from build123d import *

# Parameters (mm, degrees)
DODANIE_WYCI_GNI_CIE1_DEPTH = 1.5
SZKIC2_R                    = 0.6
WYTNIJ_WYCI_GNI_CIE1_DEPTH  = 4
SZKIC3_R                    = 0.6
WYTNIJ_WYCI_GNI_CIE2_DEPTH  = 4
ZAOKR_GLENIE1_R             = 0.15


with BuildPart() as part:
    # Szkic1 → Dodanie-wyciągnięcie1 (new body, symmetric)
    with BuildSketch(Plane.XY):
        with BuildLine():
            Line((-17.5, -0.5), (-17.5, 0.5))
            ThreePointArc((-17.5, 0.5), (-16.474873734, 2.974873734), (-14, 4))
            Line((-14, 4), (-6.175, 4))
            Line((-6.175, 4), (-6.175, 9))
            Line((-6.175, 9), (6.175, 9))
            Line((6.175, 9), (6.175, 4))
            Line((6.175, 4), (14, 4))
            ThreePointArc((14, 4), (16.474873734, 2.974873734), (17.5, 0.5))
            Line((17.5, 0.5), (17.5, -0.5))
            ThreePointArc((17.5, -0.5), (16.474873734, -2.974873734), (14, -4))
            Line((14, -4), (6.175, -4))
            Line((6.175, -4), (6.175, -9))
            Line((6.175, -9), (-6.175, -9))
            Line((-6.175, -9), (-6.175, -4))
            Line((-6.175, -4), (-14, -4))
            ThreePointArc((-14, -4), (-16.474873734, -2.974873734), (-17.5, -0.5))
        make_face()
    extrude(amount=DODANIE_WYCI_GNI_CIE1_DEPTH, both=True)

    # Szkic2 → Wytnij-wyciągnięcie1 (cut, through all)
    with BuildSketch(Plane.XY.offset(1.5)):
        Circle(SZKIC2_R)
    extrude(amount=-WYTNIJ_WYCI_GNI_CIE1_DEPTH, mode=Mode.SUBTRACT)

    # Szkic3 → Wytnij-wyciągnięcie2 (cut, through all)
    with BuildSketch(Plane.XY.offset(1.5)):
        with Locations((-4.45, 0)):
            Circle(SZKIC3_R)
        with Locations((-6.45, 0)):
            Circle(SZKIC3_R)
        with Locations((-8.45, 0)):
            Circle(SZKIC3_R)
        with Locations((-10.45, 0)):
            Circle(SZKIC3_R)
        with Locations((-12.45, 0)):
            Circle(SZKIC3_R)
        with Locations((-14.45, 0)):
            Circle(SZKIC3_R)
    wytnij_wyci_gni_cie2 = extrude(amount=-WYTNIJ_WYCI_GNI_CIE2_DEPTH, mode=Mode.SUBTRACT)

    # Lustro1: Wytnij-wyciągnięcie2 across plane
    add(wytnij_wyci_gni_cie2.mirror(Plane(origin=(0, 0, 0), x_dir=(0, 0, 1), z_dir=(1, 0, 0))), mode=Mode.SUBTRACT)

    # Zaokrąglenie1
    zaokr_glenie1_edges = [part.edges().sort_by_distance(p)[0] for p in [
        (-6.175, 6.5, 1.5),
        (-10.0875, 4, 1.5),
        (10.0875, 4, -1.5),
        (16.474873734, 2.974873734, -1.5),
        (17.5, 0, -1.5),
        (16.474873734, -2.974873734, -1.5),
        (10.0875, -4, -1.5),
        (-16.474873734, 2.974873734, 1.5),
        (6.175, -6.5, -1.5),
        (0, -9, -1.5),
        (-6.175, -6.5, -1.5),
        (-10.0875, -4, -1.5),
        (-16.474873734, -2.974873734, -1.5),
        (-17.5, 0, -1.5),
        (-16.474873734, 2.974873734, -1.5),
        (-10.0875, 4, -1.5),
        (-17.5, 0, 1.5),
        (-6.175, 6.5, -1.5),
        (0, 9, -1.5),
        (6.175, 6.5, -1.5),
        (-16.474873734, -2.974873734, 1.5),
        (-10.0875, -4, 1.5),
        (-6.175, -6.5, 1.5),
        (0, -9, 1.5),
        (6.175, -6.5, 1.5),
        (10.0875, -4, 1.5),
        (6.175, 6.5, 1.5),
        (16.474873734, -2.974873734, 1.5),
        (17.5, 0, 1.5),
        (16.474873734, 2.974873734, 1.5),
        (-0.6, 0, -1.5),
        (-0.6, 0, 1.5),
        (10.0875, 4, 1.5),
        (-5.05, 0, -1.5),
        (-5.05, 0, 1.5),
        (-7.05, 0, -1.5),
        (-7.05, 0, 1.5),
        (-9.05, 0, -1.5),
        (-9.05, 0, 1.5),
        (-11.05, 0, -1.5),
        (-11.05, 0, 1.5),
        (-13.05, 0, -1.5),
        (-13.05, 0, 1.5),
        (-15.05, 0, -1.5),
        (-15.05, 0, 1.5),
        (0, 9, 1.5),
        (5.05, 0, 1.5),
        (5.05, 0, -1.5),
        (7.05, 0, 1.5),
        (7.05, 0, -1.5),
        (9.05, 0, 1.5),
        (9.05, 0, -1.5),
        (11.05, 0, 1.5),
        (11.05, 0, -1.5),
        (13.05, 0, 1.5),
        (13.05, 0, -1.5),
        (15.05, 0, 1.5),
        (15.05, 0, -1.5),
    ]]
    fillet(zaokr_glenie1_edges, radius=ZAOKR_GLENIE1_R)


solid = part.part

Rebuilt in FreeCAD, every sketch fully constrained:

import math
import FreeCAD as App
import Part
import Sketcher
from FreeCAD import Vector


def edges_at(feature, points):
    """Names of the edges that pass closest to the given points."""
    edges = feature.Shape.Edges
    near = lambda p: min(range(len(edges)), key=lambda i: edges[i].distToShape(Part.Vertex(*p))[0])
    return sorted({f"Edge{near(p) + 1}" for p in points})

doc = App.newDocument("Part")
params = doc.addObject("Spreadsheet::Sheet", "Params")
for row, (alias, value) in enumerate([
    ("sketch1_radius", "3.5 mm"),
    ("sketch1_height", "1 mm"),
    ("sketch1_height2", "5 mm"),
    ("sketch1_width", "12.35 mm"),
    ("pad1_length", "3 mm"),
    ("sketch2_diameter", "1.2 mm"),
    ("sketch3_diameter", "1.2 mm"),
    ("fillet_radius", "0.15 mm"),
], start=1):
    params.set(f"A{row}", alias)
    params.set(f"B{row}", "=" + value)
    params.setAlias(f"B{row}", alias)

body = doc.addObject("PartDesign::Body", "Body")

# Sketch on XY plane
sketch1 = body.newObject("Sketcher::SketchObject", "Sketch")
sketch1.AttachmentSupport = (doc.getObject("XY_Plane"), [""])
sketch1.MapMode = "FlatFace"
sketch1.addGeometry(Part.LineSegment(Vector(-17.5, 0.5, 0), Vector(-17.5, -0.5, 0)), False)
sketch1.addGeometry(Part.ArcOfCircle(Part.Circle(Vector(-14, -0.5, 0), Vector(0, 0, 1), 3.5), math.radians(-180), math.radians(-90)), False)
sketch1.addGeometry(Part.LineSegment(Vector(-14, -4, 0), Vector(-6.175, -4, 0)), False)
sketch1.addGeometry(Part.LineSegment(Vector(-6.175, -4, 0), Vector(-6.175, -9, 0)), False)
sketch1.addGeometry(Part.LineSegment(Vector(-6.175, -9, 0), Vector(6.175, -9, 0)), False)
sketch1.addGeometry(Part.LineSegment(Vector(6.175, -9, 0), Vector(6.175, -4, 0)), False)
sketch1.addGeometry(Part.LineSegment(Vector(6.175, -4, 0), Vector(14, -4, 0)), False)
sketch1.addGeometry(Part.ArcOfCircle(Part.Circle(Vector(14, -0.5, 0), Vector(0, 0, 1), 3.5), math.radians(-90), math.radians(0)), False)
sketch1.addGeometry(Part.LineSegment(Vector(17.5, -0.5, 0), Vector(17.5, 0.5, 0)), False)
sketch1.addGeometry(Part.ArcOfCircle(Part.Circle(Vector(14, 0.5, 0), Vector(0, 0, 1), 3.5), math.radians(0), math.radians(90)), False)
sketch1.addGeometry(Part.LineSegment(Vector(14, 4, 0), Vector(6.175, 4, 0)), False)
sketch1.addGeometry(Part.LineSegment(Vector(6.175, 4, 0), Vector(6.175, 9, 0)), False)
sketch1.addGeometry(Part.LineSegment(Vector(6.175, 9, 0), Vector(-6.175, 9, 0)), False)
sketch1.addGeometry(Part.LineSegment(Vector(-6.175, 9, 0), Vector(-6.175, 4, 0)), False)
sketch1.addGeometry(Part.LineSegment(Vector(-6.175, 4, 0), Vector(-14, 4, 0)), False)
sketch1.addGeometry(Part.ArcOfCircle(Part.Circle(Vector(-14, 0.5, 0), Vector(0, 0, 1), 3.5), math.radians(90), math.radians(180)), False)
sketch1.addConstraint(Sketcher.Constraint("Tangent", 0, 2, 1, 1))
sketch1.addConstraint(Sketcher.Constraint("Tangent", 1, 2, 2, 1))
sketch1.addConstraint(Sketcher.Constraint("Coincident", 2, 2, 3, 1))
sketch1.addConstraint(Sketcher.Constraint("Coincident", 3, 2, 4, 1))
sketch1.addConstraint(Sketcher.Constraint("Coincident", 4, 2, 5, 1))
sketch1.addConstraint(Sketcher.Constraint("Coincident", 5, 2, 6, 1))
sketch1.addConstraint(Sketcher.Constraint("Tangent", 6, 2, 7, 1))
sketch1.addConstraint(Sketcher.Constraint("Tangent", 7, 2, 8, 1))
sketch1.addConstraint(Sketcher.Constraint("Tangent", 8, 2, 9, 1))
sketch1.addConstraint(Sketcher.Constraint("Tangent", 9, 2, 10, 1))
sketch1.addConstraint(Sketcher.Constraint("Coincident", 10, 2, 11, 1))
sketch1.addConstraint(Sketcher.Constraint("Coincident", 11, 2, 12, 1))
sketch1.addConstraint(Sketcher.Constraint("Coincident", 12, 2, 13, 1))
sketch1.addConstraint(Sketcher.Constraint("Coincident", 13, 2, 14, 1))
sketch1.addConstraint(Sketcher.Constraint("Tangent", 14, 2, 15, 1))
sketch1.addConstraint(Sketcher.Constraint("Tangent", 15, 2, 0, 1))
sketch1.addConstraint(Sketcher.Constraint("Vertical", 0))
sketch1.addConstraint(Sketcher.Constraint("Horizontal", 2))
sketch1.addConstraint(Sketcher.Constraint("Vertical", 3))
sketch1.addConstraint(Sketcher.Constraint("Horizontal", 4))
sketch1.addConstraint(Sketcher.Constraint("Vertical", 5))
sketch1.addConstraint(Sketcher.Constraint("Horizontal", 6))
sketch1.addConstraint(Sketcher.Constraint("Vertical", 8))
sketch1.addConstraint(Sketcher.Constraint("Horizontal", 10))
sketch1.addConstraint(Sketcher.Constraint("Vertical", 11))
sketch1.addConstraint(Sketcher.Constraint("Horizontal", 12))
sketch1.addConstraint(Sketcher.Constraint("Vertical", 13))
sketch1.addConstraint(Sketcher.Constraint("Horizontal", 14))
sketch1.addConstraint(Sketcher.Constraint("Equal", 1, 7))
sketch1.addConstraint(Sketcher.Constraint("Equal", 7, 9))
sketch1.addConstraint(Sketcher.Constraint("Equal", 9, 15))
sketch1.addConstraint(Sketcher.Constraint("Symmetric", 1, 3, 9, 3, -1, 1))
sketch1.addConstraint(Sketcher.Constraint("Symmetric", 3, 2, 11, 2, -1, 1))
sketch1.addConstraint(Sketcher.Constraint("Symmetric", 5, 2, 13, 2, -1, 1))
sketch1.addConstraint(Sketcher.Constraint("Symmetric", 2, 2, 5, 2, -2))
sketch1.addConstraint(Sketcher.Constraint("Radius", 1, 3.5))
sketch1.addConstraint(Sketcher.Constraint("DistanceY", 0, 2, 0, 1, 1.0))
sketch1.addConstraint(Sketcher.Constraint("DistanceY", 3, 2, 3, 1, 5.0))
sketch1.addConstraint(Sketcher.Constraint("DistanceX", 1, 3, -1, 1, 14.0))
sketch1.addConstraint(Sketcher.Constraint("DistanceX", 4, 1, 4, 2, 12.35))
sketch1.setExpression("Constraints[35]", "Params.sketch1_radius")
sketch1.setExpression("Constraints[36]", "Params.sketch1_height")
sketch1.setExpression("Constraints[37]", "Params.sketch1_height2")
sketch1.setExpression("Constraints[39]", "Params.sketch1_width")
pad1 = body.newObject("PartDesign::Pad", "Pad")
pad1.Profile = sketch1
pad1.setExpression("Length", "Params.pad1_length")
pad1.Midplane = True

# Sketch on XY plane
sketch2 = body.newObject("Sketcher::SketchObject", "Sketch001")
sketch2.AttachmentSupport = (doc.getObject("XY_Plane"), [""])
sketch2.MapMode = "FlatFace"
sketch2.AttachmentOffset = App.Placement(Vector(0, 0, 1.5), App.Rotation())
sketch2.addGeometry(Part.Circle(Vector(0, 0, 0), Vector(0, 0, 1), 0.6), False)
sketch2.addConstraint(Sketcher.Constraint("Coincident", 0, 3, -1, 1))
sketch2.addConstraint(Sketcher.Constraint("Diameter", 0, 1.2))
sketch2.setExpression("Constraints[1]", "Params.sketch2_diameter")
pocket1 = body.newObject("PartDesign::Pocket", "Pocket")
pocket1.Profile = sketch2
pocket1.Type = "ThroughAll"

# Sketch on XY plane
sketch3 = body.newObject("Sketcher::SketchObject", "Sketch002")
sketch3.AttachmentSupport = (doc.getObject("XY_Plane"), [""])
sketch3.MapMode = "FlatFace"
sketch3.AttachmentOffset = App.Placement(Vector(0, 0, 1.5), App.Rotation())
sketch3.addGeometry(Part.Circle(Vector(-4.45, 0, 0), Vector(0, 0, 1), 0.6), False)
sketch3.addGeometry(Part.Circle(Vector(-6.45, 0, 0), Vector(0, 0, 1), 0.6), False)
sketch3.addGeometry(Part.Circle(Vector(-8.45, 0, 0), Vector(0, 0, 1), 0.6), False)
sketch3.addGeometry(Part.Circle(Vector(-10.45, 0, 0), Vector(0, 0, 1), 0.6), False)
sketch3.addGeometry(Part.Circle(Vector(-12.45, 0, 0), Vector(0, 0, 1), 0.6), False)
sketch3.addGeometry(Part.Circle(Vector(-14.45, 0, 0), Vector(0, 0, 1), 0.6), False)
sketch3.addConstraint(Sketcher.Constraint("Equal", 0, 1))
sketch3.addConstraint(Sketcher.Constraint("Equal", 1, 2))
sketch3.addConstraint(Sketcher.Constraint("Equal", 2, 3))
sketch3.addConstraint(Sketcher.Constraint("Equal", 3, 4))
sketch3.addConstraint(Sketcher.Constraint("Equal", 4, 5))
sketch3.addConstraint(Sketcher.Constraint("PointOnObject", 0, 3, -1))
sketch3.addConstraint(Sketcher.Constraint("PointOnObject", 1, 3, -1))
sketch3.addConstraint(Sketcher.Constraint("PointOnObject", 2, 3, -1))
sketch3.addConstraint(Sketcher.Constraint("PointOnObject", 3, 3, -1))
sketch3.addConstraint(Sketcher.Constraint("PointOnObject", 4, 3, -1))
sketch3.addConstraint(Sketcher.Constraint("PointOnObject", 5, 3, -1))
sketch3.addConstraint(Sketcher.Constraint("Diameter", 0, 1.2))
sketch3.addConstraint(Sketcher.Constraint("DistanceX", 1, 3, 0, 3, 2.0))
sketch3.addConstraint(Sketcher.Constraint("DistanceX", 2, 3, 1, 3, 2.0))
sketch3.addConstraint(Sketcher.Constraint("DistanceX", 3, 3, 2, 3, 2.0))
sketch3.addConstraint(Sketcher.Constraint("DistanceX", 4, 3, 3, 3, 2.0))
sketch3.addConstraint(Sketcher.Constraint("DistanceX", 5, 3, 4, 3, 2.0))
sketch3.addConstraint(Sketcher.Constraint("DistanceX", 0, 3, -1, 1, 4.45))
sketch3.setExpression("Constraints[11]", "Params.sketch3_diameter")
pocket2 = body.newObject("PartDesign::Pocket", "Pocket001")
pocket2.Profile = sketch3
pocket2.Type = "ThroughAll"
doc.recompute()

mirrored = body.newObject("PartDesign::Mirrored", "Mirrored")
mirrored.Originals = [pocket2]
mirrored.MirrorPlane = (doc.getObject("YZ_Plane"), [""])
body.Tip = mirrored
doc.recompute()

fillet = body.newObject("PartDesign::Fillet", "Fillet")
fillet.Base = (mirrored, edges_at(mirrored, [
    (-6.175, 6.5, 1.5),
    (-10.088, 4, 1.5),
    (10.088, 4, -1.5),
    (16.475, 2.975, -1.5),
    (17.5, 0, -1.5),
    (16.475, -2.975, -1.5),
    (10.088, -4, -1.5),
    (-16.475, 2.975, 1.5),
    (6.175, -6.5, -1.5),
    (0, -9, -1.5),
    (-6.175, -6.5, -1.5),
    (-10.088, -4, -1.5),
    (-16.475, -2.975, -1.5),
    (-17.5, 0, -1.5),
    (-16.475, 2.975, -1.5),
    (-10.088, 4, -1.5),
    (-17.5, 0, 1.5),
    (-6.175, 6.5, -1.5),
    (0, 9, -1.5),
    (6.175, 6.5, -1.5),
    (-16.475, -2.975, 1.5),
    (-10.088, -4, 1.5),
    (-6.175, -6.5, 1.5),
    (0, -9, 1.5),
    (6.175, -6.5, 1.5),
    (10.088, -4, 1.5),
    (6.175, 6.5, 1.5),
    (16.475, -2.975, 1.5),
    (17.5, 0, 1.5),
    (16.475, 2.975, 1.5),
    (-0.6, 0, -1.5),
    (-0.6, 0, 1.5),
    (10.088, 4, 1.5),
    (-5.05, 0, -1.5),
    (-5.05, 0, 1.5),
    (-7.05, 0, -1.5),
    (-7.05, 0, 1.5),
    (-9.05, 0, -1.5),
    (-9.05, 0, 1.5),
    (-11.05, 0, -1.5),
    (-11.05, 0, 1.5),
    (-13.05, 0, -1.5),
    (-13.05, 0, 1.5),
    (-15.05, 0, -1.5),
    (-15.05, 0, 1.5),
    (0, 9, 1.5),
    (5.05, 0, 1.5),
    (5.05, 0, -1.5),
    (7.05, 0, 1.5),
    (7.05, 0, -1.5),
    (9.05, 0, 1.5),
    (9.05, 0, -1.5),
    (11.05, 0, 1.5),
    (11.05, 0, -1.5),
    (13.05, 0, 1.5),
    (13.05, 0, -1.5),
    (15.05, 0, 1.5),
    (15.05, 0, -1.5),
]))
fillet.setExpression("Radius", "Params.fillet_radius")

doc.recompute()
